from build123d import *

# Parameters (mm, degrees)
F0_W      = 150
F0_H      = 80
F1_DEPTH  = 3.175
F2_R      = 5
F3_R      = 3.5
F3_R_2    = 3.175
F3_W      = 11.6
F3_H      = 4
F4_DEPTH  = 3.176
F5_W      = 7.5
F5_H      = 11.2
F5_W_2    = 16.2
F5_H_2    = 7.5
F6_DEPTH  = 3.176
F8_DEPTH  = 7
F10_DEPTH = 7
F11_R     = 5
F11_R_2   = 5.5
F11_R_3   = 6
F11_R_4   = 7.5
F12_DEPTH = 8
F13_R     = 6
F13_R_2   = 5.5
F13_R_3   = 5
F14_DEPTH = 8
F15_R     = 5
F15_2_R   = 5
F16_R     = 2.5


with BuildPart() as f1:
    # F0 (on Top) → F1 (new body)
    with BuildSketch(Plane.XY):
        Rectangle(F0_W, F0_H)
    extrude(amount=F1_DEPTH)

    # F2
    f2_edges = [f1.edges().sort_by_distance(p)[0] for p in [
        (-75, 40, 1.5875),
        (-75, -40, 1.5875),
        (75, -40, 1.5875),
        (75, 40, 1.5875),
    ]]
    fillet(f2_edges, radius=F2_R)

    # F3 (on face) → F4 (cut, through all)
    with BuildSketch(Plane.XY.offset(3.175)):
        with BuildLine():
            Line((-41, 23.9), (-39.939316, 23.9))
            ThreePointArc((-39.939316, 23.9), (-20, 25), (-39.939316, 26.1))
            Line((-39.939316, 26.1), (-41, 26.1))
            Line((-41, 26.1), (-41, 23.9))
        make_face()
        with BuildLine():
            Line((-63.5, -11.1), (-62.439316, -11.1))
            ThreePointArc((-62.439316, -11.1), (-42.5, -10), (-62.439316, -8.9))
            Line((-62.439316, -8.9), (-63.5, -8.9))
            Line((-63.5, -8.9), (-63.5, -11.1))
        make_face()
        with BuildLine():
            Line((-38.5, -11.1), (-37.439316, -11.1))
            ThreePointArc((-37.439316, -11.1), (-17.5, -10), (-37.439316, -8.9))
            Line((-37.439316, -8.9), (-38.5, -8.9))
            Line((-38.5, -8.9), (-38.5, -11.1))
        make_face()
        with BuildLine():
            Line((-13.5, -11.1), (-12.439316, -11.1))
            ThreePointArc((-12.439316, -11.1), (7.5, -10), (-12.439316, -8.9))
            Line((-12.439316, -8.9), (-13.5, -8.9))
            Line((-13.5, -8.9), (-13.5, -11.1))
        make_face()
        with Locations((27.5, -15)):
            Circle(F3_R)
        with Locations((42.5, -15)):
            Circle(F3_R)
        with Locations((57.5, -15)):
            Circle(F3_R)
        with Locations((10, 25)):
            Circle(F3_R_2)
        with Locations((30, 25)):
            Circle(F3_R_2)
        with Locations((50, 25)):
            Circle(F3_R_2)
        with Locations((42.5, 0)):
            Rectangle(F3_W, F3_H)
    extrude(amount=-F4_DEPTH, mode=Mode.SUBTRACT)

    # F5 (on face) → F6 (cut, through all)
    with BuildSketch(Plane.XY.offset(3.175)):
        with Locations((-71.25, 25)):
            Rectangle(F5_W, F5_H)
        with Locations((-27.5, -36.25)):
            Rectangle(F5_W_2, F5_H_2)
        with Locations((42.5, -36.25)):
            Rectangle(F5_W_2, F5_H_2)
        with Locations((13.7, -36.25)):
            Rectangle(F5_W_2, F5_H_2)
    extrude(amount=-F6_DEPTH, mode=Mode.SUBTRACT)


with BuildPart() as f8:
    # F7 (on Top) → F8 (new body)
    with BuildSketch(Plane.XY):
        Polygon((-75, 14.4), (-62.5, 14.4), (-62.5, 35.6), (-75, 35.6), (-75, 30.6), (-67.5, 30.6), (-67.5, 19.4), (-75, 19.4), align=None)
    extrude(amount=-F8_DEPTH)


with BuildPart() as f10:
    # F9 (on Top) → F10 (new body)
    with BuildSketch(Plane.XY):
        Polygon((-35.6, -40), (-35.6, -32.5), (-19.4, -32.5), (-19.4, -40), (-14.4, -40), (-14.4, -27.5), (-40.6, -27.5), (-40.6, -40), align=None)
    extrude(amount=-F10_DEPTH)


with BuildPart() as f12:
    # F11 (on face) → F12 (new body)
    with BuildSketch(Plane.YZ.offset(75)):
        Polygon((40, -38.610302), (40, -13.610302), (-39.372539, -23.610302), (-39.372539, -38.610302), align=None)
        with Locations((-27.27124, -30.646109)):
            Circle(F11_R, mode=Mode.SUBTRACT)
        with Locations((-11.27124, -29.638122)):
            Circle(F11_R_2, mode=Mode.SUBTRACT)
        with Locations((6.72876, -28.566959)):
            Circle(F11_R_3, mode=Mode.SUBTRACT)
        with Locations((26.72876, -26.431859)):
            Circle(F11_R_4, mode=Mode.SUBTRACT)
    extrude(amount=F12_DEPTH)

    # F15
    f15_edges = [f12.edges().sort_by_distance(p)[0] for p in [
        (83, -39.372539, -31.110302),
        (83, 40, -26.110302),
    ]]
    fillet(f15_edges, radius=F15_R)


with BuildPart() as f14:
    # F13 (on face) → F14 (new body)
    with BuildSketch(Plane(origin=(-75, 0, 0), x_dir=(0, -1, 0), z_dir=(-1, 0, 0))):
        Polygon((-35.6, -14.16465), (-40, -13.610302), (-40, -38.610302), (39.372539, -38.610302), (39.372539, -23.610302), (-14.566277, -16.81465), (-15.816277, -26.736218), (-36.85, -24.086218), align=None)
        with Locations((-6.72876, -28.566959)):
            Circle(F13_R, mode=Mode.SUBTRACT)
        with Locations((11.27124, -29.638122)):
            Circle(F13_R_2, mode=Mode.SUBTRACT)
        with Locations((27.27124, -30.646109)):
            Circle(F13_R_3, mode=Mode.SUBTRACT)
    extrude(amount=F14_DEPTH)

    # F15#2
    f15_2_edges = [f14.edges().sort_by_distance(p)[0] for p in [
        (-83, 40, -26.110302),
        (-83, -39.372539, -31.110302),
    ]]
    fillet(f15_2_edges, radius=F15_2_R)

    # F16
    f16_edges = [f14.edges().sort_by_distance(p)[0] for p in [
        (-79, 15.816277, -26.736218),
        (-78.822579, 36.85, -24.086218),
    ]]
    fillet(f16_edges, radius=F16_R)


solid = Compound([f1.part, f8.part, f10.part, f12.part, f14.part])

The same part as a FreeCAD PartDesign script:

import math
import FreeCAD as App
import Part
import Sketcher


def edges_at(feature, points):
    """Names of the edges that pass closest to the given points."""
    edges = feature.Shape.Edges
    near = lambda p: min(range(len(edges)), key=lambda i: edges[i].distToShape(Part.Vertex(*p))[0])
    return sorted({f"Edge{near(p) + 1}" for p in points})


def add_polygon(sketch, points):
    """Adds a closed chain of lines whose ends are joined by coincident constraints."""
    first, n = sketch.GeometryCount, len(points)
    for a, b in zip(points, points[1:] + points[:1]):
        sketch.addGeometry(Part.LineSegment(App.Vector(*a, 0), App.Vector(*b, 0)), False)
    for i in range(n):
        sketch.addConstraint(Sketcher.Constraint("Coincident", first + i, 2, first + (i + 1) % n, 1))

doc = App.newDocument("Part")
body = doc.addObject("PartDesign::Body", "Body")

# Sketch on XY plane
sketch1 = doc.addObject("Sketcher::SketchObject", "Sketch")
body.addObject(sketch1)
sketch1.AttachmentSupport = (doc.XY_Plane, [""])
sketch1.MapMode = "FlatFace"
add_polygon(sketch1, [(-75, 40), (-75, -40), (75, -40), (75, 40)])  # lines 0-3
sketch1.addConstraint([
    Sketcher.Constraint("Vertical", 0),
    Sketcher.Constraint("Horizontal", 1),
    Sketcher.Constraint("Vertical", 2),
    Sketcher.Constraint("Horizontal", 3),
    Sketcher.Constraint("Symmetric", 0, 2, 2, 2, -1, 1),
    Sketcher.Constraint("DistanceX", 1, 1, 1, 2, 150.0),
    Sketcher.Constraint("DistanceY", 0, 2, 0, 1, 80.0),
])
pad1 = doc.addObject("PartDesign::Pad", "Pad")
body.addObject(pad1)
pad1.Profile = sketch1
pad1.Length = 3.175
doc.recompute()

fillet = doc.addObject("PartDesign::Fillet", "Fillet")
body.addObject(fillet)
fillet.Base = (pad1, edges_at(pad1, [
    (-75, 40, 1.587),
    (-75, -40, 1.587),
    (75, -40, 1.587),
    (75, 40, 1.587),
]))
fillet.Radius = 5

# Sketch on XY plane
sketch2 = doc.addObject("Sketcher::SketchObject", "Sketch001")
body.addObject(sketch2)
sketch2.AttachmentSupport = (doc.XY_Plane, [""])
sketch2.MapMode = "FlatFace"
sketch2.AttachmentOffset = App.Placement(App.Vector(0, 0, 3.175), App.Rotation())
sketch2.addGeometry(Part.LineSegment(App.Vector(-41, 23.9, 0), App.Vector(-39.939316, 23.9, 0)), False)  # 0
sketch2.addGeometry(Part.ArcOfCircle(Part.Circle(App.Vector(-30, 25, 0), App.Vector(0, 0, 1), 10), math.radians(-173.684684), math.radians(173.684684)), False)  # 1
sketch2.addGeometry(Part.LineSegment(App.Vector(-39.939316, 26.1, 0), App.Vector(-41, 26.1, 0)), False)  # 2
sketch2.addGeometry(Part.LineSegment(App.Vector(-41, 26.1, 0), App.Vector(-41, 23.9, 0)), False)  # 3
sketch2.addGeometry(Part.LineSegment(App.Vector(-63.5, -11.1, 0), App.Vector(-62.439316, -11.1, 0)), False)  # 4
sketch2.addGeometry(Part.ArcOfCircle(Part.Circle(App.Vector(-52.5, -10, 0), App.Vector(0, 0, 1), 10), math.radians(-173.684684), math.radians(173.684684)), False)  # 5
sketch2.addGeometry(Part.LineSegment(App.Vector(-62.439316, -8.9, 0), App.Vector(-63.5, -8.9, 0)), False)  # 6
sketch2.addGeometry(Part.LineSegment(App.Vector(-63.5, -8.9, 0), App.Vector(-63.5, -11.1, 0)), False)  # 7
sketch2.addGeometry(Part.LineSegment(App.Vector(-38.5, -11.1, 0), App.Vector(-37.439316, -11.1, 0)), False)  # 8
sketch2.addGeometry(Part.ArcOfCircle(Part.Circle(App.Vector(-27.5, -10, 0), App.Vector(0, 0, 1), 10), math.radians(-173.684684), math.radians(173.684684)), False)  # 9
sketch2.addGeometry(Part.LineSegment(App.Vector(-37.439316, -8.9, 0), App.Vector(-38.5, -8.9, 0)), False)  # 10
sketch2.addGeometry(Part.LineSegment(App.Vector(-38.5, -8.9, 0), App.Vector(-38.5, -11.1, 0)), False)  # 11
sketch2.addGeometry(Part.LineSegment(App.Vector(-13.5, -11.1, 0), App.Vector(-12.439316, -11.1, 0)), False)  # 12
sketch2.addGeometry(Part.ArcOfCircle(Part.Circle(App.Vector(-2.5, -10, 0), App.Vector(0, 0, 1), 10), math.radians(-173.684684), math.radians(173.684684)), False)  # 13
sketch2.addGeometry(Part.LineSegment(App.Vector(-12.439316, -8.9, 0), App.Vector(-13.5, -8.9, 0)), False)  # 14
sketch2.addGeometry(Part.LineSegment(App.Vector(-13.5, -8.9, 0), App.Vector(-13.5, -11.1, 0)), False)  # 15
sketch2.addGeometry(Part.Circle(App.Vector(27.5, -15, 0), App.Vector(0, 0, 1), 3.5), False)  # 16
sketch2.addGeometry(Part.Circle(App.Vector(42.5, -15, 0), App.Vector(0, 0, 1), 3.5), False)  # 17
sketch2.addGeometry(Part.Circle(App.Vector(57.5, -15, 0), App.Vector(0, 0, 1), 3.5), False)  # 18
sketch2.addGeometry(Part.Circle(App.Vector(10, 25, 0), App.Vector(0, 0, 1), 3.175), False)  # 19
sketch2.addGeometry(Part.Circle(App.Vector(30, 25, 0), App.Vector(0, 0, 1), 3.175), False)  # 20
sketch2.addGeometry(Part.Circle(App.Vector(50, 25, 0), App.Vector(0, 0, 1), 3.175), False)  # 21
add_polygon(sketch2, [(36.7, 2), (36.7, -2), (48.3, -2), (48.3, 2)])  # lines 22-25
sketch2.addConstraint([
    Sketcher.Constraint("Coincident", 0, 2, 1, 1),
    Sketcher.Constraint("Coincident", 1, 2, 2, 1),
    Sketcher.Constraint("Coincident", 2, 2, 3, 1),
    Sketcher.Constraint("Coincident", 3, 2, 0, 1),
    Sketcher.Constraint("Coincident", 4, 2, 5, 1),
    Sketcher.Constraint("Coincident", 5, 2, 6, 1),
    Sketcher.Constraint("Coincident", 6, 2, 7, 1),
    Sketcher.Constraint("Coincident", 7, 2, 4, 1),
    Sketcher.Constraint("Coincident", 8, 2, 9, 1),
    Sketcher.Constraint("Coincident", 9, 2, 10, 1),
    Sketcher.Constraint("Coincident", 10, 2, 11, 1),
    Sketcher.Constraint("Coincident", 11, 2, 8, 1),
    Sketcher.Constraint("Coincident", 12, 2, 13, 1),
    Sketcher.Constraint("Coincident", 13, 2, 14, 1),
    Sketcher.Constraint("Coincident", 14, 2, 15, 1),
    Sketcher.Constraint("Coincident", 15, 2, 12, 1),
    Sketcher.Constraint("Horizontal", 0),
    Sketcher.Constraint("Horizontal", 2),
    Sketcher.Constraint("Vertical", 3),
    Sketcher.Constraint("Horizontal", 4),
    Sketcher.Constraint("Horizontal", 6),
    Sketcher.Constraint("Vertical", 7),
    Sketcher.Constraint("Horizontal", 8),
    Sketcher.Constraint("Horizontal", 10),
    Sketcher.Constraint("Vertical", 11),
    Sketcher.Constraint("Horizontal", 12),
    Sketcher.Constraint("Horizontal", 14),
    Sketcher.Constraint("Vertical", 15),
    Sketcher.Constraint("Vertical", 22),
    Sketcher.Constraint("Horizontal", 23),
    Sketcher.Constraint("Vertical", 24),
    Sketcher.Constraint("Horizontal", 25),
    Sketcher.Constraint("Equal", 1, 5),
    Sketcher.Constraint("Equal", 5, 9),
    Sketcher.Constraint("Equal", 9, 13),
    Sketcher.Constraint("Equal", 16, 17),
    Sketcher.Constraint("Equal", 17, 18),
    Sketcher.Constraint("Equal", 19, 20),
    Sketcher.Constraint("Equal", 20, 21),
    Sketcher.Constraint("Symmetric", 1, 3, 20, 3, -2),
    Sketcher.Constraint("Horizontal", 5, 3, 9, 3),
    Sketcher.Constraint("Horizontal", 9, 3, 13, 3),
    Sketcher.Constraint("Horizontal", 16, 3, 17, 3),
    Sketcher.Constraint("Horizontal", 17, 3, 18, 3),
    Sketcher.Constraint("Horizontal", 1, 3, 19, 3),
    Sketcher.Constraint("Horizontal", 20, 3, 21, 3),
    Sketcher.Constraint("Horizontal", 7, 2, 8, 2),
    Sketcher.Constraint("Horizontal", 6, 2, 9, 2),
    Sketcher.Constraint("Horizontal", 11, 2, 12, 2),
    Sketcher.Constraint("Horizontal", 10, 2, 13, 2),
    Sketcher.Constraint("Vertical", 0, 2, 1, 2),
    Sketcher.Constraint("Vertical", 4, 2, 5, 2),
    Sketcher.Constraint("Equal", 2, 4),
    Sketcher.Constraint("Equal", 6, 8),
    Sketcher.Constraint("Equal", 10, 12),
    Sketcher.Constraint("Equal", 3, 7),
    Sketcher.Constraint("Diameter", 16, 7.0),
    Sketcher.Constraint("Radius", 1, 10.0),
    Sketcher.Constraint("Diameter", 19, 6.35),
    Sketcher.Constraint("DistanceY", 22, 2, 22, 1, 4.0),
    Sketcher.Constraint("DistanceX", 23, 1, 23, 2, 11.6),
    Sketcher.Constraint("DistanceY", 3, 2, 3, 1, 2.2),
    Sketcher.Constraint("DistanceX", 1, 3, -1, 1, 30.0),
    Sketcher.Constraint("DistanceY", -1, 1, 1, 3, 25.0),
    Sketcher.Constraint("DistanceY", 5, 3, -1, 1, 10.0),
    Sketcher.Constraint("DistanceY", 16, 3, -1, 1, 15.0),
    Sketcher.Constraint("DistanceX", -1, 1, 19, 3, 10.0),
    Sketcher.Constraint("DistanceX", -1, 1, 21, 3, 50.0),
    Sketcher.Constraint("DistanceX", 2, 2, -1, 1, 41.0),
    Sketcher.Constraint("DistanceY", 22, 2, -1, 1, 2.0),
    Sketcher.Constraint("DistanceX", 5, 3, 9, 3, 25.0),
    Sketcher.Constraint("DistanceX", 9, 3, 13, 3, 25.0),
    Sketcher.Constraint("DistanceX", 13, 3, 16, 3, 30.0),
    Sketcher.Constraint("DistanceX", 16, 3, 17, 3, 15.0),
    Sketcher.Constraint("DistanceX", 17, 3, 18, 3, 15.0),
    Sketcher.Constraint("DistanceX", 5, 3, -1, 1, 52.5),
    Sketcher.Constraint("DistanceX", -1, 1, 22, 2, 36.7),
])
pocket1 = doc.addObject("PartDesign::Pocket", "Pocket")
body.addObject(pocket1)
pocket1.Profile = sketch2
pocket1.Type = "ThroughAll"

# Sketch on XY plane
sketch3 = doc.addObject("Sketcher::SketchObject", "Sketch002")
body.addObject(sketch3)
sketch3.AttachmentSupport = (doc.XY_Plane, [""])
sketch3.MapMode = "FlatFace"
sketch3.AttachmentOffset = App.Placement(App.Vector(0, 0, 3.175), App.Rotation())
add_polygon(sketch3, [(-75, 30.6), (-75, 19.4), (-67.5, 19.4), (-67.5, 30.6)])  # lines 0-3
add_polygon(sketch3, [(-35.6, -32.5), (-35.6, -40), (-19.4, -40), (-19.4, -32.5)])  # lines 4-7
add_polygon(sketch3, [(34.4, -32.5), (34.4, -40), (50.6, -40), (50.6, -32.5)])  # lines 8-11
add_polygon(sketch3, [(5.6, -32.5), (5.6, -40), (21.8, -40), (21.8, -32.5)])  # lines 12-15
sketch3.addConstraint([
    Sketcher.Constraint("Vertical", 0),
    Sketcher.Constraint("Horizontal", 1),
    Sketcher.Constraint("Vertical", 2),
    Sketcher.Constraint("Horizontal", 3),
    Sketcher.Constraint("Vertical", 4),
    Sketcher.Constraint("Horizontal", 5),
    Sketcher.Constraint("Vertical", 6),
    Sketcher.Constraint("Horizontal", 7),
    Sketcher.Constraint("Vertical", 8),
    Sketcher.Constraint("Horizontal", 9),
    Sketcher.Constraint("Vertical", 10),
    Sketcher.Constraint("Horizontal", 11),
    Sketcher.Constraint("Vertical", 12),
    Sketcher.Constraint("Horizontal", 13),
    Sketcher.Constraint("Vertical", 14),
    Sketcher.Constraint("Horizontal", 15),
    Sketcher.Constraint("Horizontal", 5, 2, 8, 2),
    Sketcher.Constraint("Horizontal", 7, 2, 10, 2),
    Sketcher.Constraint("Horizontal", 9, 2, 12, 2),
    Sketcher.Constraint("Horizontal", 11, 2, 14, 2),
    Sketcher.Constraint("Equal", 7, 9),
    Sketcher.Constraint("Equal", 11, 13),
    Sketcher.Constraint("Equal", 3, 4),
    Sketcher.Constraint("DistanceX", 1, 1, 1, 2, 7.5),
    Sketcher.Constraint("DistanceX", 5, 1, 5, 2, 16.2),
    Sketcher.Constraint("DistanceY", 0, 2, 0, 1, 11.2),
    Sketcher.Constraint("DistanceX", 0, 2, -1, 1, 75.0),
    Sketcher.Constraint("DistanceY", 4, 2, -1, 1, 40.0),
    Sketcher.Constraint("DistanceX", 4, 2, 8, 2, 70.0),
    Sketcher.Constraint("DistanceX", 5, 2, 12, 2, 25.0),
    Sketcher.Constraint("DistanceY", -1, 1, 0, 2, 19.4),
    Sketcher.Constraint("DistanceX", 4, 2, -1, 1, 35.6),
])
pocket2 = doc.addObject("PartDesign::Pocket", "Pocket001")
body.addObject(pocket2)
pocket2.Profile = sketch3
pocket2.Type = "ThroughAll"
body2 = doc.addObject("PartDesign::Body", "Body001")

# Sketch on XY plane
sketch4 = doc.addObject("Sketcher::SketchObject", "Sketch003")
body2.addObject(sketch4)
sketch4.AttachmentSupport = (doc.getObject("XY_Plane001"), [""])
sketch4.MapMode = "FlatFace"
add_polygon(sketch4, [(-75, 14.4), (-62.5, 14.4), (-62.5, 35.6), (-75, 35.6), (-75, 30.6), (-67.5, 30.6), (-67.5, 19.4), (-75, 19.4)])  # lines 0-7
sketch4.addConstraint([
    Sketcher.Constraint("Horizontal", 0),
    Sketcher.Constraint("Vertical", 1),
    Sketcher.Constraint("Horizontal", 2),
    Sketcher.Constraint("Vertical", 3),
    Sketcher.Constraint("Horizontal", 4),
    Sketcher.Constraint("Vertical", 5),
    Sketcher.Constraint("Horizontal", 6),
    Sketcher.Constraint("Vertical", 7),
    Sketcher.Constraint("Vertical", 3, 2, 6, 2),
    Sketcher.Constraint("Equal", 3, 7),
    Sketcher.Constraint("DistanceY", 3, 2, 3, 1, 5.0),
    Sketcher.Constraint("DistanceX", 0, 1, 0, 2, 12.5),
    Sketcher.Constraint("DistanceX", 4, 1, 4, 2, 7.5),
    Sketcher.Constraint("DistanceY", 1, 1, 1, 2, 21.2),
    Sketcher.Constraint("DistanceX", 2, 2, -1, 1, 75.0),
    Sketcher.Constraint("DistanceY", -1, 1, 0, 2, 14.4),
])
pad2 = doc.addObject("PartDesign::Pad", "Pad001")
body2.addObject(pad2)
pad2.Profile = sketch4
pad2.Length = 7
pad2.Reversed = True
body3 = doc.addObject("PartDesign::Body", "Body002")

# Sketch on XY plane
sketch5 = doc.addObject("Sketcher::SketchObject", "Sketch004")
body3.addObject(sketch5)
sketch5.AttachmentSupport = (doc.getObject("XY_Plane002"), [""])
sketch5.MapMode = "FlatFace"
add_polygon(sketch5, [(-35.6, -40), (-35.6, -32.5), (-19.4, -32.5), (-19.4, -40), (-14.4, -40), (-14.4, -27.5), (-40.6, -27.5), (-40.6, -40)])  # lines 0-7
sketch5.addConstraint([
    Sketcher.Constraint("Vertical", 0),
    Sketcher.Constraint("Horizontal", 1),
    Sketcher.Constraint("Vertical", 2),
    Sketcher.Constraint("Horizontal", 3),
    Sketcher.Constraint("Vertical", 4),
    Sketcher.Constraint("Horizontal", 5),
    Sketcher.Constraint("Vertical", 6),
    Sketcher.Constraint("Horizontal", 7),
    Sketcher.Constraint("Horizontal", 3, 2, 6, 2),
    Sketcher.Constraint("Equal", 3, 7),
    Sketcher.Constraint("DistanceX", 3, 1, 3, 2, 5.0),
    Sketcher.Constraint("DistanceX", 1, 1, 1, 2, 16.2),
    Sketcher.Constraint("DistanceY", 0, 1, 0, 2, 7.5),
    Sketcher.Constraint("DistanceY", 4, 1, 4, 2, 12.5),
    Sketcher.Constraint("DistanceY", 2, 2, -1, 1, 40.0),
    Sketcher.Constraint("DistanceX", 0, 2, -1, 1, 35.6),
])
pad3 = doc.addObject("PartDesign::Pad", "Pad002")
body3.addObject(pad3)
pad3.Profile = sketch5
pad3.Length = 7
pad3.Reversed = True
body4 = doc.addObject("PartDesign::Body", "Body003")

# Sketch on YZ plane
sketch6 = doc.addObject("Sketcher::SketchObject", "Sketch005")
body4.addObject(sketch6)
sketch6.AttachmentSupport = (doc.getObject("YZ_Plane003"), [""])
sketch6.MapMode = "FlatFace"
sketch6.AttachmentOffset = App.Placement(App.Vector(0, 0, 75), App.Rotation())
add_polygon(sketch6, [(40, -38.610302), (40, -13.610302), (-39.372539, -23.610302), (-39.372539, -38.610302)])  # lines 0-3
sketch6.addGeometry(Part.Circle(App.Vector(-27.27124, -30.646109, 0), App.Vector(0, 0, 1), 5), False)  # 4
sketch6.addGeometry(Part.Circle(App.Vector(-11.27124, -29.638122, 0), App.Vector(0, 0, 1), 5.5), False)  # 5
sketch6.addGeometry(Part.Circle(App.Vector(6.72876, -28.566959, 0), App.Vector(0, 0, 1), 6), False)  # 6
sketch6.addGeometry(Part.Circle(App.Vector(26.72876, -26.431859, 0), App.Vector(0, 0, 1), 7.5), False)  # 7
sketch6.addConstraint([
    Sketcher.Constraint("Vertical", 0),
    Sketcher.Constraint("Vertical", 2),
    Sketcher.Constraint("Horizontal", 3),
    Sketcher.Constraint("Diameter", 4, 10.0),
    Sketcher.Constraint("Diameter", 5, 11.0),
    Sketcher.Constraint("Diameter", 6, 12.0),
    Sketcher.Constraint("Diameter", 7, 15.0),
    Sketcher.Constraint("DistanceY", 0, 1, 0, 2, 25.0),
    Sketcher.Constraint("DistanceY", 2, 2, 2, 1, 15.0),
    Sketcher.Constraint("Distance", 1, 80.0),
    Sketcher.Constraint("DistanceX", -1, 1, 0, 2, 40.0),
    Sketcher.Constraint("DistanceX", 4, 3, 5, 3, 16.0),
    Sketcher.Constraint("DistanceX", 5, 3, 6, 3, 18.0),
    Sketcher.Constraint("DistanceX", 6, 3, 7, 3, 20.0),
    Sketcher.Constraint("DistanceY", 2, 2, -1, 1, 38.610302),
    Sketcher.Constraint("DistanceY", 6, 3, 7, 3, 2.1351),
    Sketcher.Constraint("DistanceX", 1, 2, 4, 3, 12.101299),
    Sketcher.Constraint("DistanceY", 4, 3, -1, 1, 30.646109),
    Sketcher.Constraint("DistanceY", 5, 3, -1, 1, 29.638122),
    Sketcher.Constraint("DistanceY", 6, 3, -1, 1, 28.566959),
])
pad4 = doc.addObject("PartDesign::Pad", "Pad003")
body4.addObject(pad4)
pad4.Profile = sketch6
pad4.Length = 8
doc.recompute()

fillet2 = doc.addObject("PartDesign::Fillet", "Fillet001")
body4.addObject(fillet2)
fillet2.Base = (pad4, edges_at(pad4, [(83, -39.373, -31.11), (83, 40, -26.11)]))
fillet2.Radius = 5
body5 = doc.addObject("PartDesign::Body", "Body004")

# Sketch on YZ plane
sketch7 = doc.addObject("Sketcher::SketchObject", "Sketch006")
body5.addObject(sketch7)
sketch7.AttachmentSupport = (doc.getObject("YZ_Plane004"), [""])
sketch7.MapMode = "FlatFace"
sketch7.AttachmentOffset = App.Placement(App.Vector(0, 0, -75), App.Rotation())
add_polygon(sketch7, [(35.6, -14.16465), (40, -13.610302), (40, -38.610302), (-39.372539, -38.610302), (-39.372539, -23.610302), (14.566277, -16.81465), (15.816277, -26.736218), (36.85, -24.086218)])  # lines 0-7
sketch7.addGeometry(Part.Circle(App.Vector(-11.27124, -29.638122, 0), App.Vector(0, 0, 1), 5.5), False)  # 8
sketch7.addGeometry(Part.Circle(App.Vector(-27.27124, -30.646109, 0), App.Vector(0, 0, 1), 5), False)  # 9
sketch7.addGeometry(Part.Circle(App.Vector(6.72876, -28.566959, 0), App.Vector(0, 0, 1), 6), False)  # 10
sketch7.addConstraint([
    Sketcher.Constraint("Vertical", 1),
    Sketcher.Constraint("Horizontal", 2),
    Sketcher.Constraint("Vertical", 3),
    Sketcher.Constraint("Parallel", 0, 4),
    Sketcher.Constraint("Perpendicular", 4, 5),
    Sketcher.Constraint("Perpendicular", 5, 6),
    Sketcher.Constraint("Perpendicular", 6, 7),
    Sketcher.Constraint("Equal", 5, 7),
    Sketcher.Constraint("Diameter", 8, 11.0),
    Sketcher.Constraint("Diameter", 9, 10.0),
    Sketcher.Constraint("Diameter", 10, 12.0),
    Sketcher.Constraint("DistanceY", 1, 2, 1, 1, 25.0),
    Sketcher.Constraint("DistanceY", 3, 1, 3, 2, 15.0),
    Sketcher.Constraint("Distance", 5, 10.000001),
    Sketcher.Constraint("DistanceX", -1, 1, 0, 2, 40.0),
    Sketcher.Constraint("DistanceX", 9, 3, 8, 3, 16.0),
    Sketcher.Constraint("DistanceX", 8, 3, 10, 3, 18.0),
    Sketcher.Constraint("Distance", 6, 21.2),
    Sketcher.Constraint("DistanceX", -1, 1, 7, 2, 35.6),
    Sketcher.Constraint("DistanceX", -1, 1, 6, 2, 36.85),
    Sketcher.Constraint("DistanceY", 1, 2, -1, 1, 38.610302),
    Sketcher.Constraint("DistanceX", 2, 2, 9, 3, 12.101299),
    Sketcher.Constraint("DistanceY", 8, 3, -1, 1, 29.638122),
    Sketcher.Constraint("DistanceY", 9, 3, -1, 1, 30.646109),
    Sketcher.Constraint("DistanceY", 10, 3, -1, 1, 28.566959),
])
pad5 = doc.addObject("PartDesign::Pad", "Pad004")
body5.addObject(pad5)
pad5.Profile = sketch7
pad5.Length = 8
pad5.Reversed = True
doc.recompute()

fillet3 = doc.addObject("PartDesign::Fillet", "Fillet002")
body5.addObject(fillet3)
fillet3.Base = (pad5, edges_at(pad5, [(-83, 40, -26.11), (-83, -39.373, -31.11)]))
fillet3.Radius = 5
doc.recompute()

fillet4 = doc.addObject("PartDesign::Fillet", "Fillet003")
body5.addObject(fillet4)
fillet4.Base = (fillet3, edges_at(fillet3, [(-79, 15.816, -26.736), (-78.823, 36.85, -24.086)]))
fillet4.Radius = 2.5

doc.recompute()
